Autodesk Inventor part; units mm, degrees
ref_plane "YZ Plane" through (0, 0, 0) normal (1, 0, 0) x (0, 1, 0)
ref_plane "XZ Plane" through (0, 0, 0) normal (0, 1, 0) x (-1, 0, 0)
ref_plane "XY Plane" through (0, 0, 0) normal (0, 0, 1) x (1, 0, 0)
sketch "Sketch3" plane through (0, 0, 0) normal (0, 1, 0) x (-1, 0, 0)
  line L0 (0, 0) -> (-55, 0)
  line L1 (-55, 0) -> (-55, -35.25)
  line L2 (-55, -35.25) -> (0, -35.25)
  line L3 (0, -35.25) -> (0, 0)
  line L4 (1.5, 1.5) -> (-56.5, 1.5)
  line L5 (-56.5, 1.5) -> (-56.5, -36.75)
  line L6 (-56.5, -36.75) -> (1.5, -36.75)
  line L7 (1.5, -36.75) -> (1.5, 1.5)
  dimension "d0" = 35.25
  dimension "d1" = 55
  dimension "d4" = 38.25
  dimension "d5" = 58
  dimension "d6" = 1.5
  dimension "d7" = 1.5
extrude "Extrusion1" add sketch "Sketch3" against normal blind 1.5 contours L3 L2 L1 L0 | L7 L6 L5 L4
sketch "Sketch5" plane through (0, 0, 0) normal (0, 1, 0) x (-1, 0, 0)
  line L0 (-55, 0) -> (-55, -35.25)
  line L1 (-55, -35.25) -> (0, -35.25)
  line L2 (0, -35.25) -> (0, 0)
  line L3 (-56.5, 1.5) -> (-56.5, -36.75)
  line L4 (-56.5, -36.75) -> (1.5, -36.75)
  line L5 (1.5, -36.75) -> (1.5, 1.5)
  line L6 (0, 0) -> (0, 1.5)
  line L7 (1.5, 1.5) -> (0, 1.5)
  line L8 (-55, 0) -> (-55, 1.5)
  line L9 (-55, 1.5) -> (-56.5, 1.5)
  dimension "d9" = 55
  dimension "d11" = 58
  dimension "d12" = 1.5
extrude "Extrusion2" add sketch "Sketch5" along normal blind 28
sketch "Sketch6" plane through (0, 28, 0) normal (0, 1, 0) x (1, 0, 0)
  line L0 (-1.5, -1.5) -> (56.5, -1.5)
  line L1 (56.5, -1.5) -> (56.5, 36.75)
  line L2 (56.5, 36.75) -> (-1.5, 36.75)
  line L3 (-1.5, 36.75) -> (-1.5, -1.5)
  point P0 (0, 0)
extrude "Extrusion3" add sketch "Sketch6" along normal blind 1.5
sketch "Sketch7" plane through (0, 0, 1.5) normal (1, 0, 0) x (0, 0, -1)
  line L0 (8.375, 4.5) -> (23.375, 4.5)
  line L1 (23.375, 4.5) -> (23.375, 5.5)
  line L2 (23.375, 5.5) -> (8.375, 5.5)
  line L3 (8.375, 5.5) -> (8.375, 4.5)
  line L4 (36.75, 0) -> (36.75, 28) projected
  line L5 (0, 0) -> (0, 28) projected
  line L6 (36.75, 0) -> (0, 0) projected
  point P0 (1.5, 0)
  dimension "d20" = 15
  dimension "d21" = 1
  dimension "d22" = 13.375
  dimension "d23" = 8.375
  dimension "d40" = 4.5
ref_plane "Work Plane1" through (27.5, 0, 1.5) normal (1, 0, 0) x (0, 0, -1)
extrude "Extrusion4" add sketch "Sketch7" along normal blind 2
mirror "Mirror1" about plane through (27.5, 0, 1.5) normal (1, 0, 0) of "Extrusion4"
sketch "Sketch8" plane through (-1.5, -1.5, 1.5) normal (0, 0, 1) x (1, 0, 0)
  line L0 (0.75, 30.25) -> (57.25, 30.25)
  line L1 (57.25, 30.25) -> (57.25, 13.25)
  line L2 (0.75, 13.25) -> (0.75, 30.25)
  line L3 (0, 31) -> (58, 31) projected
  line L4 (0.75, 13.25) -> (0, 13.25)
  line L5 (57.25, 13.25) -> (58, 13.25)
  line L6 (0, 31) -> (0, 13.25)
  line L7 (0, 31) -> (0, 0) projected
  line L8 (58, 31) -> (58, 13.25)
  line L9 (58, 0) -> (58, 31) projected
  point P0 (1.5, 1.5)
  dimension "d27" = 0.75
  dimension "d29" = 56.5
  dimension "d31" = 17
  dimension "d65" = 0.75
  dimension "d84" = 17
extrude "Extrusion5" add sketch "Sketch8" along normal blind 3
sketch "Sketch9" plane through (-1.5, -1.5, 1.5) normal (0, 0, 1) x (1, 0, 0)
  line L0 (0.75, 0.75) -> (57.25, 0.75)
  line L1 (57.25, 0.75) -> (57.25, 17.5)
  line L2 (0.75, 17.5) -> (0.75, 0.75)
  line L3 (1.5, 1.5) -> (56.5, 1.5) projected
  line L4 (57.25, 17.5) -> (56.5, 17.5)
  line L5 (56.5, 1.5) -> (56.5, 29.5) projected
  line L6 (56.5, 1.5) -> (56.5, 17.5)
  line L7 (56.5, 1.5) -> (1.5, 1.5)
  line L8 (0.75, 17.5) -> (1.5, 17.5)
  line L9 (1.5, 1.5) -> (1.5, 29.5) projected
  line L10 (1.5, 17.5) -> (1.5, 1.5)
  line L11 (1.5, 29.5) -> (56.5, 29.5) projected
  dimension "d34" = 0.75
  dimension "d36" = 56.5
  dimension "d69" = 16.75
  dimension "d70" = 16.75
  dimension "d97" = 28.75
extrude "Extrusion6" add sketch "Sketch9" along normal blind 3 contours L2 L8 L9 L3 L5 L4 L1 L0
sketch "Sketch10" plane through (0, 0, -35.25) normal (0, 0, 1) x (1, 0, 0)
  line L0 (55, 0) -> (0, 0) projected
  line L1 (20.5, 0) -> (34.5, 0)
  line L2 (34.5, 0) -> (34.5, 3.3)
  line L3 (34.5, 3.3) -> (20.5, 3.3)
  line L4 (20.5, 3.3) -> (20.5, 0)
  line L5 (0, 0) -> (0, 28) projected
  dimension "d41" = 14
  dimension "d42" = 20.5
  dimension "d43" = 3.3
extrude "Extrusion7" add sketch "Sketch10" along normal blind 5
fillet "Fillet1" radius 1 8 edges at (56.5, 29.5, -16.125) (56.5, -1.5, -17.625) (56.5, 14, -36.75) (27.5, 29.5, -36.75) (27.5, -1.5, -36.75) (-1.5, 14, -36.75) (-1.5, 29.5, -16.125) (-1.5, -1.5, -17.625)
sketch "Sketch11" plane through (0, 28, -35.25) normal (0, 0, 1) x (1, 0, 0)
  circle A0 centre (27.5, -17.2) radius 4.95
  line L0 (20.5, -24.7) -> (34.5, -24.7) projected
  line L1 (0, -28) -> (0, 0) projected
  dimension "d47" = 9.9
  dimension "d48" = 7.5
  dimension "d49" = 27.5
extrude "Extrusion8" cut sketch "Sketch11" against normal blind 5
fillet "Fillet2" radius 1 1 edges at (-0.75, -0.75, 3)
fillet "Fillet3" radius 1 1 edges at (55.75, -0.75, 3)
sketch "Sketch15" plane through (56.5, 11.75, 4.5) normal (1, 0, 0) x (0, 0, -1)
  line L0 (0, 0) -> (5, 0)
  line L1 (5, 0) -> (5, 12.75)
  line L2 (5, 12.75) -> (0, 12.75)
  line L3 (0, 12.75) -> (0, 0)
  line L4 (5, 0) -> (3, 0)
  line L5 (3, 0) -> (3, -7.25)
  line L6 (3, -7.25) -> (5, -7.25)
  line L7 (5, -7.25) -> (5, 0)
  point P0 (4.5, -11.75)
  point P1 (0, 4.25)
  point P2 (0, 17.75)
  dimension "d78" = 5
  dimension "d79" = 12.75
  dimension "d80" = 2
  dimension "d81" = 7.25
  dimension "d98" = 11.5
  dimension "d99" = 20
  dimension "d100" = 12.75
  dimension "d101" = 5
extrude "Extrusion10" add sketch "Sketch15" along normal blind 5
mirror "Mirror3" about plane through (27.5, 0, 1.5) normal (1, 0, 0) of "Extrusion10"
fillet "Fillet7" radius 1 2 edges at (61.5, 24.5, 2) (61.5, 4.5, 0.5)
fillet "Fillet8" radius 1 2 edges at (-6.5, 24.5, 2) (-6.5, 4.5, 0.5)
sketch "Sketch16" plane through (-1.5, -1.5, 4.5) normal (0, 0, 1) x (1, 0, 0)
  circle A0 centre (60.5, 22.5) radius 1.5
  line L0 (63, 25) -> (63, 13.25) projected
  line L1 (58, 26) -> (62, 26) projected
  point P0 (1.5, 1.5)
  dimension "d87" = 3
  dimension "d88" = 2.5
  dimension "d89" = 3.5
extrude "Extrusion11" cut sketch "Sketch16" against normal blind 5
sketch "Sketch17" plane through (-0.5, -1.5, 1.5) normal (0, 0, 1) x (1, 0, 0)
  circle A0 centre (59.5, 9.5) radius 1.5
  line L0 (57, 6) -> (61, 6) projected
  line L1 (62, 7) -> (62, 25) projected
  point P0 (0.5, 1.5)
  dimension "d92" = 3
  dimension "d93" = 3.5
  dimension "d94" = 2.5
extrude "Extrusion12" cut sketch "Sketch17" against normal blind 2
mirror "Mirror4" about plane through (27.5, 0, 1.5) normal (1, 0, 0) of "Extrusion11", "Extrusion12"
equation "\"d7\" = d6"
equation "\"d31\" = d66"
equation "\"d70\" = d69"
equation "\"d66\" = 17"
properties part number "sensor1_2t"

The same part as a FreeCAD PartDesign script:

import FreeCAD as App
import Part
import Sketcher


def edges_at(feature, points):
    """Names of the edges that pass closest to the given points."""
    edges = feature.Shape.Edges
    near = lambda p: min(range(len(edges)), key=lambda i: edges[i].distToShape(Part.Vertex(*p))[0])
    return sorted({f"Edge{near(p) + 1}" for p in points})


def add_polygon(sketch, points):
    """Adds a closed chain of lines whose ends are joined by coincident constraints."""
    first, n = sketch.GeometryCount, len(points)
    for a, b in zip(points, points[1:] + points[:1]):
        sketch.addGeometry(Part.LineSegment(App.Vector(*a, 0), App.Vector(*b, 0)), False)
    for i in range(n):
        sketch.addConstraint(Sketcher.Constraint("Coincident", first + i, 2, first + (i + 1) % n, 1))

doc = App.newDocument("Part")
params = doc.addObject("Spreadsheet::Sheet", "Params")
for row, (alias, value) in enumerate([
    ("sketch1_width", "58 mm"),
    ("sketch1_height", "38.25 mm"),
    ("pad1_length", "1.5 mm"),
    ("sketch2_width", "58 mm"),
    ("sketch2_width2", "55 mm"),
    ("sketch2_height", "36.75 mm"),
    ("pad2_length", "28 mm"),
    ("sketch3_width", "58 mm"),
    ("sketch3_height", "38.25 mm"),
    ("pad3_length", "1.5 mm"),
    ("sketch4_width", "1 mm"),
    ("sketch4_height", "15 mm"),
    ("pad4_length", "2 mm"),
    ("sketch5_height", "17 mm"),
    ("sketch5_width", "56.5 mm"),
    ("sketch5_width2", "0.75 mm"),
    ("pad5_length", "3 mm"),
    ("sketch6_width", "56.5 mm"),
    ("sketch6_width2", "0.75 mm"),
    ("sketch6_height", "16.75 mm"),
    ("sketch6_height2", "16 mm"),
    ("pad6_length", "3 mm"),
    ("sketch7_width", "14 mm"),
    ("sketch7_height", "3.3 mm"),
    ("pad7_length", "5 mm"),
    ("fillet_radius", "1 mm"),
    ("sketch8_diameter", "9.9 mm"),
    ("pocket1_length", "5 mm"),
    ("fillet2_radius", "1 mm"),
    ("fillet3_radius", "1 mm"),
    ("sketch9_width", "20 mm"),
    ("sketch9_height", "2 mm"),
    ("sketch9_height2", "5 mm"),
    ("sketch9_width2", "12.75 mm"),
    ("pad8_length", "5 mm"),
    ("fillet4_radius", "1 mm"),
    ("fillet5_radius", "1 mm"),
    ("sketch10_diameter", "3 mm"),
    ("pocket2_length", "5 mm"),
    ("sketch11_diameter", "3 mm"),
    ("pocket3_length", "2 mm"),
], start=1):
    params.set(f"A{row}", alias)
    params.set(f"B{row}", "=" + value)
    params.setAlias(f"B{row}", alias)

body = doc.addObject("PartDesign::Body", "Body")

# Sketch on XZ plane
sketch1 = body.newObject("Sketcher::SketchObject", "Sketch")
sketch1.AttachmentSupport = (doc.getObject("XZ_Plane"), [""])
sketch1.MapMode = "FlatFace"
add_polygon(sketch1, [(-2, -37), (-2, 2), (56, 2), (56, -37)])  # lines 0-3
sketch1.addConstraint([
    Sketcher.Constraint("Vertical", 0),
    Sketcher.Constraint("Horizontal", 1),
    Sketcher.Constraint("Vertical", 2),
    Sketcher.Constraint("Horizontal", 3),
    Sketcher.Constraint("DistanceX", 1, 1, 1, 2, 58.0),
    Sketcher.Constraint("DistanceY", 0, 1, 0, 2, 38.25),
    Sketcher.Constraint("DistanceX", 0, 2, -1, 1, 1.5),
    Sketcher.Constraint("DistanceY", -1, 1, 0, 2, 1.5),
])
sketch1.setExpression("Constraints[8]", "Params.sketch1_width")
sketch1.setExpression("Constraints[9]", "Params.sketch1_height")
pad1 = body.newObject("PartDesign::Pad", "Pad")
pad1.Profile = sketch1
pad1.setExpression("Length", "Params.pad1_length")

# Sketch on XZ plane
sketch2 = body.newObject("Sketcher::SketchObject", "Sketch001")
sketch2.AttachmentSupport = (doc.getObject("XZ_Plane"), [""])
sketch2.MapMode = "FlatFace"
add_polygon(sketch2, [(55, -35.2), (55, 1.5), (56.5, 1.5), (56.5, -36.8), (-1.5, -36.8), (-1.5, 1.5), (0, 1.5), (0, -35.2)])  # lines 0-7
sketch2.addConstraint([
    Sketcher.Constraint("Vertical", 0),
    Sketcher.Constraint("Horizontal", 1),
    Sketcher.Constraint("Vertical", 2),
    Sketcher.Constraint("Horizontal", 3),
    Sketcher.Constraint("Vertical", 4),
    Sketcher.Constraint("Horizontal", 5),
    Sketcher.Constraint("Vertical", 6),
    Sketcher.Constraint("Horizontal", 7),
    Sketcher.Constraint("PointOnObject", 5, 2, -2),
    Sketcher.Constraint("Horizontal", 1, 2, 4, 2),
    Sketcher.Constraint("Equal", 1, 5),
    Sketcher.Constraint("DistanceX", 3, 2, 3, 1, 58.0),
    Sketcher.Constraint("DistanceX", 7, 1, 7, 2, 55.0),
    Sketcher.Constraint("DistanceY", -1, 1, 0, 2, 1.5),
    Sketcher.Constraint("DistanceY", 3, 2, 6, 2, 1.5),
    Sketcher.Constraint("DistanceY", 0, 1, 0, 2, 36.75),
])
sketch2.setExpression("Constraints[19]", "Params.sketch2_width")
sketch2.setExpression("Constraints[20]", "Params.sketch2_width2")
sketch2.setExpression("Constraints[23]", "Params.sketch2_height")
pad2 = body.newObject("PartDesign::Pad", "Pad001")
pad2.Profile = sketch2
pad2.setExpression("Length", "Params.pad2_length")
pad2.Reversed = True

# Sketch on XZ plane
sketch3 = body.newObject("Sketcher::SketchObject", "Sketch002")
sketch3.AttachmentSupport = (doc.getObject("XZ_Plane"), [""])
sketch3.MapMode = "FlatFace"
sketch3.AttachmentOffset = App.Placement(App.Vector(0, 0, -28), App.Rotation())
add_polygon(sketch3, [(-2, -37), (-2, 2), (56, 2), (56, -37)])  # lines 0-3
sketch3.addConstraint([
    Sketcher.Constraint("Vertical", 0),
    Sketcher.Constraint("Horizontal", 1),
    Sketcher.Constraint("Vertical", 2),
    Sketcher.Constraint("Horizontal", 3),
    Sketcher.Constraint("DistanceX", 1, 1, 1, 2, 58.0),
    Sketcher.Constraint("DistanceY", 0, 1, 0, 2, 38.25),
    Sketcher.Constraint("DistanceX", 0, 2, -1, 1, 1.5),
    Sketcher.Constraint("DistanceY", -1, 1, 0, 2, 1.5),
])
sketch3.setExpression("Constraints[8]", "Params.sketch3_width")
sketch3.setExpression("Constraints[9]", "Params.sketch3_height")
pad3 = body.newObject("PartDesign::Pad", "Pad002")
pad3.Profile = sketch3
pad3.setExpression("Length", "Params.pad3_length")
pad3.Reversed = True

# Sketch on YZ plane
sketch4 = body.newObject("Sketcher::SketchObject", "Sketch003")
sketch4.AttachmentSupport = (doc.getObject("YZ_Plane"), [""])
sketch4.MapMode = "FlatFace"
add_polygon(sketch4, [(5.5, -6.9), (4.5, -6.9), (4.5, -21.9), (5.5, -21.9)])  # lines 0-3
sketch4.addConstraint([
    Sketcher.Constraint("Horizontal", 0),
    Sketcher.Constraint("Vertical", 1),
    Sketcher.Constraint("Horizontal", 2),
    Sketcher.Constraint("Vertical", 3),
    Sketcher.Constraint("DistanceX", 0, 2, 0, 1, 1.0),
    Sketcher.Constraint("DistanceY", 1, 2, 1, 1, 15.0),
    Sketcher.Constraint("DistanceX", -1, 1, 0, 2, 4.5),
    Sketcher.Constraint("DistanceY", 0, 2, -1, 1, 6.875),
])
sketch4.setExpression("Constraints[8]", "Params.sketch4_width")
sketch4.setExpression("Constraints[9]", "Params.sketch4_height")
pad4 = body.newObject("PartDesign::Pad", "Pad003")
pad4.Profile = sketch4
pad4.setExpression("Length", "Params.pad4_length")
doc.recompute()

datumplane = body.newObject("PartDesign::Plane", "DatumPlane")
datumplane.AttachmentSupport = (doc.getObject("YZ_Plane"), [""])
datumplane.MapMode = "FlatFace"
datumplane.AttachmentOffset = App.Placement(App.Vector(0, 0, 27.5), App.Rotation())
mirrored = body.newObject("PartDesign::Mirrored", "Mirrored")
mirrored.Originals = [pad4]
mirrored.MirrorPlane = (datumplane, [""])
body.Tip = mirrored

# Sketch on XY plane
sketch5 = body.newObject("Sketcher::SketchObject", "Sketch004")
sketch5.AttachmentSupport = (doc.getObject("XY_Plane"), [""])
sketch5.MapMode = "FlatFace"
sketch5.AttachmentOffset = App.Placement(App.Vector(0, 0, 1.5), App.Rotation())
add_polygon(sketch5, [(-0.8, 11.8), (-0.8, 28.8), (55.8, 28.8), (55.8, 11.8), (56.5, 11.8), (56.5, 29.5), (-1.5, 29.5), (-1.5, 11.8)])  # lines 0-7
sketch5.addConstraint([
    Sketcher.Constraint("Vertical", 0),
    Sketcher.Constraint("Horizontal", 1),
    Sketcher.Constraint("Vertical", 2),
    Sketcher.Constraint("Horizontal", 3),
    Sketcher.Constraint("Vertical", 4),
    Sketcher.Constraint("Horizontal", 5),
    Sketcher.Constraint("Vertical", 6),
    Sketcher.Constraint("Horizontal", 7),
    Sketcher.Constraint("Horizontal", 3, 2, 6, 2),
    Sketcher.Constraint("Equal", 3, 7),
    Sketcher.Constraint("DistanceY", 0, 1, 0, 2, 17.0),
    Sketcher.Constraint("DistanceX", 1, 1, 1, 2, 56.5),
    Sketcher.Constraint("DistanceX", 3, 1, 3, 2, 0.75),
    Sketcher.Constraint("DistanceX", -1, 1, 3, 2, 56.5),
    Sketcher.Constraint("DistanceY", 1, 2, 4, 2, 0.75),
    Sketcher.Constraint("DistanceY", -1, 1, 4, 2, 29.5),
])
sketch5.setExpression("Constraints[18]", "Params.sketch5_height")
sketch5.setExpression("Constraints[19]", "Params.sketch5_width")
sketch5.setExpression("Constraints[20]", "Params.sketch5_width2")
pad5 = body.newObject("PartDesign::Pad", "Pad004")
pad5.Profile = sketch5
pad5.setExpression("Length", "Params.pad5_length")

# Sketch on XY plane
sketch6 = body.newObject("Sketcher::SketchObject", "Sketch005")
sketch6.AttachmentSupport = (doc.getObject("XY_Plane"), [""])
sketch6.MapMode = "FlatFace"
sketch6.AttachmentOffset = App.Placement(App.Vector(0, 0, 1.5), App.Rotation())
add_polygon(sketch6, [(-0.8, 16), (-0.8, -0.8), (55.8, -0.8), (55.8, 16), (55, 16), (55, 0), (0, 0), (0, 16)])  # lines 0-7
sketch6.addConstraint([
    Sketcher.Constraint("Vertical", 0),
    Sketcher.Constraint("Horizontal", 1),
    Sketcher.Constraint("Vertical", 2),
    Sketcher.Constraint("Horizontal", 3),
    Sketcher.Constraint("Vertical", 4),
    Sketcher.Constraint("Horizontal", 5),
    Sketcher.Constraint("Vertical", 6),
    Sketcher.Constraint("Horizontal", 7),
    Sketcher.Constraint("Coincident", 5, 2, -1, 1),
    Sketcher.Constraint("Horizontal", 3, 2, 6, 2),
    Sketcher.Constraint("Equal", 3, 7),
    Sketcher.Constraint("DistanceX", 1, 1, 1, 2, 56.5),
    Sketcher.Constraint("DistanceX", 3, 2, 3, 1, 0.75),
    Sketcher.Constraint("DistanceY", 0, 2, 0, 1, 16.75),
    Sketcher.Constraint("DistanceY", 4, 2, 4, 1, 16.0),
])
sketch6.setExpression("Constraints[19]", "Params.sketch6_width")
sketch6.setExpression("Constraints[20]", "Params.sketch6_width2")
sketch6.setExpression("Constraints[21]", "Params.sketch6_height")
sketch6.setExpression("Constraints[22]", "Params.sketch6_height2")
pad6 = body.newObject("PartDesign::Pad", "Pad005")
pad6.Profile = sketch6
pad6.setExpression("Length", "Params.pad6_length")

# Sketch on XY plane
sketch7 = body.newObject("Sketcher::SketchObject", "Sketch006")
sketch7.AttachmentSupport = (doc.getObject("XY_Plane"), [""])
sketch7.MapMode = "FlatFace"
sketch7.AttachmentOffset = App.Placement(App.Vector(0, 0, -35.25), App.Rotation())
add_polygon(sketch7, [(20.5, 0), (34.5, 0), (34.5, 3.3), (20.5, 3.3)])  # lines 0-3
sketch7.addConstraint([
    Sketcher.Constraint("Horizontal", 0),
    Sketcher.Constraint("Vertical", 1),
    Sketcher.Constraint("Horizontal", 2),
    Sketcher.Constraint("Vertical", 3),
    Sketcher.Constraint("PointOnObject", 0, 2, -1),
    Sketcher.Constraint("DistanceX", 0, 1, 0, 2, 14.0),
    Sketcher.Constraint("DistanceY", 1, 1, 1, 2, 3.3),
    Sketcher.Constraint("DistanceX", -1, 1, 2, 2, 20.5),
])
sketch7.setExpression("Constraints[9]", "Params.sketch7_width")
sketch7.setExpression("Constraints[10]", "Params.sketch7_height")
pad7 = body.newObject("PartDesign::Pad", "Pad006")
pad7.Profile = sketch7
pad7.setExpression("Length", "Params.pad7_length")
doc.recompute()

fillet = body.newObject("PartDesign::Fillet", "Fillet")
fillet.Base = (pad7, edges_at(pad7, [
    (56.5, 29.5, -16.125),
    (56.5, -1.5, -17.625),
    (56.5, 14, -36.75),
    (27.5, 29.5, -36.75),
    (27.5, -1.5, -36.75),
    (-1.5, 14, -36.75),
    (-1.5, 29.5, -16.125),
    (-1.5, -1.5, -17.625),
]))
fillet.setExpression("Radius", "Params.fillet_radius")

# Sketch on XY plane
sketch8 = body.newObject("Sketcher::SketchObject", "Sketch007")
sketch8.AttachmentSupport = (doc.getObject("XY_Plane"), [""])
sketch8.MapMode = "FlatFace"
sketch8.AttachmentOffset = App.Placement(App.Vector(0, 0, -35.25), App.Rotation())
sketch8.addGeometry(Part.Circle(App.Vector(27.5, 10.8, 0), App.Vector(0, 0, 1), 5), False)
sketch8.addConstraint([
    Sketcher.Constraint("Diameter", 0, 9.9),
    Sketcher.Constraint("DistanceX", -1, 1, 0, 3, 27.5),
    Sketcher.Constraint("DistanceY", -1, 1, 0, 3, 10.8),
])
sketch8.setExpression("Constraints[0]", "Params.sketch8_diameter")
pocket1 = body.newObject("PartDesign::Pocket", "Pocket")
pocket1.Profile = sketch8
pocket1.setExpression("Length", "Params.pocket1_length")
doc.recompute()

fillet2 = body.newObject("PartDesign::Fillet", "Fillet001")
fillet2.Base = (pocket1, edges_at(pocket1, [(-0.75, -0.75, 3)]))
fillet2.setExpression("Radius", "Params.fillet2_radius")
doc.recompute()

fillet3 = body.newObject("PartDesign::Fillet", "Fillet002")
fillet3.Base = (fillet2, edges_at(fillet2, [(55.75, -0.75, 3)]))
fillet3.setExpression("Radius", "Params.fillet3_radius")

# Sketch on YZ plane
sketch9 = body.newObject("Sketcher::SketchObject", "Sketch008")
sketch9.AttachmentSupport = (doc.getObject("YZ_Plane"), [""])
sketch9.MapMode = "FlatFace"
sketch9.AttachmentOffset = App.Placement(App.Vector(0, 0, 56.5), App.Rotation())
add_polygon(sketch9, [(24.5, 4.5), (11.8, 4.5), (11.8, 1.5), (4.5, 1.5), (4.5, -0.5), (24.5, -0.5)])  # lines 0-5
sketch9.addConstraint([
    Sketcher.Constraint("Horizontal", 0),
    Sketcher.Constraint("Vertical", 1),
    Sketcher.Constraint("Horizontal", 2),
    Sketcher.Constraint("Vertical", 3),
    Sketcher.Constraint("Horizontal", 4),
    Sketcher.Constraint("Vertical", 5),
    Sketcher.Constraint("DistanceX", 4, 1, 4, 2, 20.0),
    Sketcher.Constraint("DistanceY", 3, 2, 3, 1, 2.0),
    Sketcher.Constraint("DistanceY", 5, 1, 5, 2, 5.0),
    Sketcher.Constraint("DistanceX", 0, 2, 0, 1, 12.75),
    Sketcher.Constraint("DistanceY", -1, 1, 0, 2, 4.5),
    Sketcher.Constraint("DistanceX", -1, 1, 2, 2, 4.5),
])
sketch9.setExpression("Constraints[12]", "Params.sketch9_width")
sketch9.setExpression("Constraints[13]", "Params.sketch9_height")
sketch9.setExpression("Constraints[14]", "Params.sketch9_height2")
sketch9.setExpression("Constraints[15]", "Params.sketch9_width2")
pad8 = body.newObject("PartDesign::Pad", "Pad007")
pad8.Profile = sketch9
pad8.setExpression("Length", "Params.pad8_length")
doc.recompute()

datumplane2 = body.newObject("PartDesign::Plane", "DatumPlane001")
datumplane2.AttachmentSupport = (doc.getObject("YZ_Plane"), [""])
datumplane2.MapMode = "FlatFace"
datumplane2.AttachmentOffset = App.Placement(App.Vector(0, 0, 27.5), App.Rotation())
mirrored2 = body.newObject("PartDesign::Mirrored", "Mirrored001")
mirrored2.Originals = [pad8]
mirrored2.MirrorPlane = (datumplane2, [""])
body.Tip = mirrored2
doc.recompute()

fillet4 = body.newObject("PartDesign::Fillet", "Fillet003")
fillet4.Base = (mirrored2, edges_at(mirrored2, [(61.5, 24.5, 2), (61.5, 4.5, 0.5)]))
fillet4.setExpression("Radius", "Params.fillet4_radius")
doc.recompute()

fillet5 = body.newObject("PartDesign::Fillet", "Fillet004")
fillet5.Base = (fillet4, edges_at(fillet4, [(-6.5, 24.5, 2), (-6.5, 4.5, 0.5)]))
fillet5.setExpression("Radius", "Params.fillet5_radius")

# Sketch on XY plane
sketch10 = body.newObject("Sketcher::SketchObject", "Sketch009")
sketch10.AttachmentSupport = (doc.getObject("XY_Plane"), [""])
sketch10.MapMode = "FlatFace"
sketch10.AttachmentOffset = App.Placement(App.Vector(0, 0, 4.5), App.Rotation())
sketch10.addGeometry(Part.Circle(App.Vector(59, 21, 0), App.Vector(0, 0, 1), 1.5), False)
sketch10.addConstraint([
    Sketcher.Constraint("Diameter", 0, 3.0),
    Sketcher.Constraint("DistanceX", -1, 1, 0, 3, 59.0),
    Sketcher.Constraint("DistanceY", -1, 1, 0, 3, 21.0),
])
sketch10.setExpression("Constraints[0]", "Params.sketch10_diameter")
pocket2 = body.newObject("PartDesign::Pocket", "Pocket001")
pocket2.Profile = sketch10
pocket2.setExpression("Length", "Params.pocket2_length")

# Sketch on XY plane
sketch11 = body.newObject("Sketcher::SketchObject", "Sketch010")
sketch11.AttachmentSupport = (doc.getObject("XY_Plane"), [""])
sketch11.MapMode = "FlatFace"
sketch11.AttachmentOffset = App.Placement(App.Vector(0, 0, 1.5), App.Rotation())
sketch11.addGeometry(Part.Circle(App.Vector(59, 8, 0), App.Vector(0, 0, 1), 1.5), False)
sketch11.addConstraint([
    Sketcher.Constraint("Diameter", 0, 3.0),
    Sketcher.Constraint("DistanceX", -1, 1, 0, 3, 59.0),
    Sketcher.Constraint("DistanceY", -1, 1, 0, 3, 8.0),
])
sketch11.setExpression("Constraints[0]", "Params.sketch11_diameter")
pocket3 = body.newObject("PartDesign::Pocket", "Pocket002")
pocket3.Profile = sketch11
pocket3.setExpression("Length", "Params.pocket3_length")
doc.recompute()

datumplane3 = body.newObject("PartDesign::Plane", "DatumPlane002")
datumplane3.AttachmentSupport = (doc.getObject("YZ_Plane"), [""])
datumplane3.MapMode = "FlatFace"
datumplane3.AttachmentOffset = App.Placement(App.Vector(0, 0, 27.5), App.Rotation())
mirrored3 = body.newObject("PartDesign::Mirrored", "Mirrored002")
mirrored3.Originals = [pocket2, pocket3]
mirrored3.MirrorPlane = (datumplane3, [""])
body.Tip = mirrored3

doc.recompute()
